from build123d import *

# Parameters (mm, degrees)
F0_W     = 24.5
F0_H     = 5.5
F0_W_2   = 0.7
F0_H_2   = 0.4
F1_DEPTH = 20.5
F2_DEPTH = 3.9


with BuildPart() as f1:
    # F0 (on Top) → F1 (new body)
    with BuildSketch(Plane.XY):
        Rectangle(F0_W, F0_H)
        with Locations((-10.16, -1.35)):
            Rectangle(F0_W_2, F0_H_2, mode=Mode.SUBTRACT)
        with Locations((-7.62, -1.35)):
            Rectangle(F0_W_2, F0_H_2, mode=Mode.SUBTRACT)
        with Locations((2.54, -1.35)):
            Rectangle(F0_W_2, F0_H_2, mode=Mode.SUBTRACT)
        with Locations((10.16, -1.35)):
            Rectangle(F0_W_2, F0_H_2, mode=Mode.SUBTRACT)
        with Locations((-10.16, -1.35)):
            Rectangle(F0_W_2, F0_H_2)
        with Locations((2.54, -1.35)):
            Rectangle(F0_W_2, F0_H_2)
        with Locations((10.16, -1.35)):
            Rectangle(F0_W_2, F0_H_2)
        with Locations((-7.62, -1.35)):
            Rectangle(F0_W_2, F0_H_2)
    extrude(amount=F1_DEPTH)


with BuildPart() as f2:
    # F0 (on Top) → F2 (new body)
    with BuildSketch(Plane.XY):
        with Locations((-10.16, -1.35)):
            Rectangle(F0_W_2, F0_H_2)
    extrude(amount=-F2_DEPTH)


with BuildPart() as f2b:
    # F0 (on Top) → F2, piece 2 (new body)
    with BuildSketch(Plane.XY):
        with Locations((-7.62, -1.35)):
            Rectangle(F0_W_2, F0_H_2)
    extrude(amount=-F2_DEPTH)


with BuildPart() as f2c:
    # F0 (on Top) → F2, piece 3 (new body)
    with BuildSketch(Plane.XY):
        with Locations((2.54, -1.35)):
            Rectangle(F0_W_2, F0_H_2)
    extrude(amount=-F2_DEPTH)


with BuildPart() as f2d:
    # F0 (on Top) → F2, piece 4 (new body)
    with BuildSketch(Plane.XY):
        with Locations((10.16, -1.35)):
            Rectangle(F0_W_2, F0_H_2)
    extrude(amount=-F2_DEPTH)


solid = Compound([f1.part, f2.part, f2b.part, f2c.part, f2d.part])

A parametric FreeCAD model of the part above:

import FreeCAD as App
import Part
import Sketcher
Q = App.Units.Quantity


def add_polygon(sketch, points):
    """Adds a closed chain of lines whose ends are joined by coincident constraints."""
    first, n = sketch.GeometryCount, len(points)
    for a, b in zip(points, points[1:] + points[:1]):
        sketch.addGeometry(Part.LineSegment(App.Vector(*a, 0), App.Vector(*b, 0)), False)
    for i in range(n):
        sketch.addConstraint(Sketcher.Constraint("Coincident", first + i, 2, first + (i + 1) % n, 1))

doc = App.newDocument("Part")
body = doc.addObject("PartDesign::Body", "Body")

# Sketch on XY plane
sketch1 = body.newObject("Sketcher::SketchObject", "Sketch")
sketch1.AttachmentSupport = (doc.getObject("XY_Plane"), [""])
sketch1.MapMode = "FlatFace"
add_polygon(sketch1, [(-12, 3), (-12, -3), (12, -3), (12, 3)])  # lines 0-3
sketch1.addConstraint([
    Sketcher.Constraint("Vertical", 0),
    Sketcher.Constraint("Horizontal", 1),
    Sketcher.Constraint("Vertical", 2),
    Sketcher.Constraint("Horizontal", 3),
    Sketcher.Constraint("Symmetric", 0, 2, 2, 2, -1, 1),
    Sketcher.Constraint("DistanceX", 1, 1, 1, 2, Q("24.5 mm")),
    Sketcher.Constraint("DistanceY", 0, 2, 0, 1, Q("5.5 mm")),
])
pad1 = body.newObject("PartDesign::Pad", "Pad")
pad1.Profile = sketch1
pad1.Length = 20.5
body2 = doc.addObject("PartDesign::Body", "Body001")

# Sketch on XY plane
sketch2 = body2.newObject("Sketcher::SketchObject", "Sketch001")
sketch2.AttachmentSupport = (doc.getObject("XY_Plane001"), [""])
sketch2.MapMode = "FlatFace"
add_polygon(sketch2, [(-10.51, -1.15), (-10.51, -1.55), (-9.81, -1.55), (-9.81, -1.15)])  # lines 0-3
sketch2.addConstraint([
    Sketcher.Constraint("Vertical", 0),
    Sketcher.Constraint("Horizontal", 1),
    Sketcher.Constraint("Vertical", 2),
    Sketcher.Constraint("Horizontal", 3),
    Sketcher.Constraint("DistanceX", 1, 1, 1, 2, Q("0.7 mm")),
    Sketcher.Constraint("DistanceY", 0, 2, 0, 1, Q("0.4 mm")),
    Sketcher.Constraint("DistanceX", 0, 2, -1, 1, Q("10.51 mm")),
    Sketcher.Constraint("DistanceY", 0, 2, -1, 1, Q("1.55 mm")),
])
pad2 = body2.newObject("PartDesign::Pad", "Pad001")
pad2.Profile = sketch2
pad2.Length = 3.9
pad2.Reversed = True
body3 = doc.addObject("PartDesign::Body", "Body002")

# Sketch on XY plane
sketch3 = body3.newObject("Sketcher::SketchObject", "Sketch002")
sketch3.AttachmentSupport = (doc.getObject("XY_Plane002"), [""])
sketch3.MapMode = "FlatFace"
add_polygon(sketch3, [(-7.97, -1.15), (-7.97, -1.55), (-7.27, -1.55), (-7.27, -1.15)])  # lines 0-3
sketch3.addConstraint([
    Sketcher.Constraint("Vertical", 0),
    Sketcher.Constraint("Horizontal", 1),
    Sketcher.Constraint("Vertical", 2),
    Sketcher.Constraint("Horizontal", 3),
    Sketcher.Constraint("DistanceX", 1, 1, 1, 2, Q("0.7 mm")),
    Sketcher.Constraint("DistanceY", 0, 2, 0, 1, Q("0.4 mm")),
    Sketcher.Constraint("DistanceX", 0, 2, -1, 1, Q("7.97 mm")),
    Sketcher.Constraint("DistanceY", 0, 2, -1, 1, Q("1.55 mm")),
])
pad3 = body3.newObject("PartDesign::Pad", "Pad002")
pad3.Profile = sketch3
pad3.Length = 3.9
pad3.Reversed = True
body4 = doc.addObject("PartDesign::Body", "Body003")

# Sketch on XY plane
sketch4 = body4.newObject("Sketcher::SketchObject", "Sketch003")
sketch4.AttachmentSupport = (doc.getObject("XY_Plane003"), [""])
sketch4.MapMode = "FlatFace"
add_polygon(sketch4, [(2.19, -1.15), (2.19, -1.55), (2.89, -1.55), (2.89, -1.15)])  # lines 0-3
sketch4.addConstraint([
    Sketcher.Constraint("Vertical", 0),
    Sketcher.Constraint("Horizontal", 1),
    Sketcher.Constraint("Vertical", 2),
    Sketcher.Constraint("Horizontal", 3),
    Sketcher.Constraint("DistanceX", 1, 1, 1, 2, Q("0.7 mm")),
    Sketcher.Constraint("DistanceY", 0, 2, 0, 1, Q("0.4 mm")),
    Sketcher.Constraint("DistanceX", -1, 1, 0, 2, Q("2.19 mm")),
    Sketcher.Constraint("DistanceY", 0, 2, -1, 1, Q("1.55 mm")),
])
pad4 = body4.newObject("PartDesign::Pad", "Pad003")
pad4.Profile = sketch4
pad4.Length = 3.9
pad4.Reversed = True
body5 = doc.addObject("PartDesign::Body", "Body004")

# Sketch on XY plane
sketch5 = body5.newObject("Sketcher::SketchObject", "Sketch004")
sketch5.AttachmentSupport = (doc.getObject("XY_Plane004"), [""])
sketch5.MapMode = "FlatFace"
add_polygon(sketch5, [(9.81, -1.15), (9.81, -1.55), (10.51, -1.55), (10.51, -1.15)])  # lines 0-3
sketch5.addConstraint([
    Sketcher.Constraint("Vertical", 0),
    Sketcher.Constraint("Horizontal", 1),
    Sketcher.Constraint("Vertical", 2),
    Sketcher.Constraint("Horizontal", 3),
    Sketcher.Constraint("DistanceX", 1, 1, 1, 2, Q("0.7 mm")),
    Sketcher.Constraint("DistanceY", 0, 2, 0, 1, Q("0.4 mm")),
    Sketcher.Constraint("DistanceX", -1, 1, 0, 2, Q("9.81 mm")),
    Sketcher.Constraint("DistanceY", 0, 2, -1, 1, Q("1.55 mm")),
])
pad5 = body5.newObject("PartDesign::Pad", "Pad004")
pad5.Profile = sketch5
pad5.Length = 3.9
pad5.Reversed = True

doc.recompute()
